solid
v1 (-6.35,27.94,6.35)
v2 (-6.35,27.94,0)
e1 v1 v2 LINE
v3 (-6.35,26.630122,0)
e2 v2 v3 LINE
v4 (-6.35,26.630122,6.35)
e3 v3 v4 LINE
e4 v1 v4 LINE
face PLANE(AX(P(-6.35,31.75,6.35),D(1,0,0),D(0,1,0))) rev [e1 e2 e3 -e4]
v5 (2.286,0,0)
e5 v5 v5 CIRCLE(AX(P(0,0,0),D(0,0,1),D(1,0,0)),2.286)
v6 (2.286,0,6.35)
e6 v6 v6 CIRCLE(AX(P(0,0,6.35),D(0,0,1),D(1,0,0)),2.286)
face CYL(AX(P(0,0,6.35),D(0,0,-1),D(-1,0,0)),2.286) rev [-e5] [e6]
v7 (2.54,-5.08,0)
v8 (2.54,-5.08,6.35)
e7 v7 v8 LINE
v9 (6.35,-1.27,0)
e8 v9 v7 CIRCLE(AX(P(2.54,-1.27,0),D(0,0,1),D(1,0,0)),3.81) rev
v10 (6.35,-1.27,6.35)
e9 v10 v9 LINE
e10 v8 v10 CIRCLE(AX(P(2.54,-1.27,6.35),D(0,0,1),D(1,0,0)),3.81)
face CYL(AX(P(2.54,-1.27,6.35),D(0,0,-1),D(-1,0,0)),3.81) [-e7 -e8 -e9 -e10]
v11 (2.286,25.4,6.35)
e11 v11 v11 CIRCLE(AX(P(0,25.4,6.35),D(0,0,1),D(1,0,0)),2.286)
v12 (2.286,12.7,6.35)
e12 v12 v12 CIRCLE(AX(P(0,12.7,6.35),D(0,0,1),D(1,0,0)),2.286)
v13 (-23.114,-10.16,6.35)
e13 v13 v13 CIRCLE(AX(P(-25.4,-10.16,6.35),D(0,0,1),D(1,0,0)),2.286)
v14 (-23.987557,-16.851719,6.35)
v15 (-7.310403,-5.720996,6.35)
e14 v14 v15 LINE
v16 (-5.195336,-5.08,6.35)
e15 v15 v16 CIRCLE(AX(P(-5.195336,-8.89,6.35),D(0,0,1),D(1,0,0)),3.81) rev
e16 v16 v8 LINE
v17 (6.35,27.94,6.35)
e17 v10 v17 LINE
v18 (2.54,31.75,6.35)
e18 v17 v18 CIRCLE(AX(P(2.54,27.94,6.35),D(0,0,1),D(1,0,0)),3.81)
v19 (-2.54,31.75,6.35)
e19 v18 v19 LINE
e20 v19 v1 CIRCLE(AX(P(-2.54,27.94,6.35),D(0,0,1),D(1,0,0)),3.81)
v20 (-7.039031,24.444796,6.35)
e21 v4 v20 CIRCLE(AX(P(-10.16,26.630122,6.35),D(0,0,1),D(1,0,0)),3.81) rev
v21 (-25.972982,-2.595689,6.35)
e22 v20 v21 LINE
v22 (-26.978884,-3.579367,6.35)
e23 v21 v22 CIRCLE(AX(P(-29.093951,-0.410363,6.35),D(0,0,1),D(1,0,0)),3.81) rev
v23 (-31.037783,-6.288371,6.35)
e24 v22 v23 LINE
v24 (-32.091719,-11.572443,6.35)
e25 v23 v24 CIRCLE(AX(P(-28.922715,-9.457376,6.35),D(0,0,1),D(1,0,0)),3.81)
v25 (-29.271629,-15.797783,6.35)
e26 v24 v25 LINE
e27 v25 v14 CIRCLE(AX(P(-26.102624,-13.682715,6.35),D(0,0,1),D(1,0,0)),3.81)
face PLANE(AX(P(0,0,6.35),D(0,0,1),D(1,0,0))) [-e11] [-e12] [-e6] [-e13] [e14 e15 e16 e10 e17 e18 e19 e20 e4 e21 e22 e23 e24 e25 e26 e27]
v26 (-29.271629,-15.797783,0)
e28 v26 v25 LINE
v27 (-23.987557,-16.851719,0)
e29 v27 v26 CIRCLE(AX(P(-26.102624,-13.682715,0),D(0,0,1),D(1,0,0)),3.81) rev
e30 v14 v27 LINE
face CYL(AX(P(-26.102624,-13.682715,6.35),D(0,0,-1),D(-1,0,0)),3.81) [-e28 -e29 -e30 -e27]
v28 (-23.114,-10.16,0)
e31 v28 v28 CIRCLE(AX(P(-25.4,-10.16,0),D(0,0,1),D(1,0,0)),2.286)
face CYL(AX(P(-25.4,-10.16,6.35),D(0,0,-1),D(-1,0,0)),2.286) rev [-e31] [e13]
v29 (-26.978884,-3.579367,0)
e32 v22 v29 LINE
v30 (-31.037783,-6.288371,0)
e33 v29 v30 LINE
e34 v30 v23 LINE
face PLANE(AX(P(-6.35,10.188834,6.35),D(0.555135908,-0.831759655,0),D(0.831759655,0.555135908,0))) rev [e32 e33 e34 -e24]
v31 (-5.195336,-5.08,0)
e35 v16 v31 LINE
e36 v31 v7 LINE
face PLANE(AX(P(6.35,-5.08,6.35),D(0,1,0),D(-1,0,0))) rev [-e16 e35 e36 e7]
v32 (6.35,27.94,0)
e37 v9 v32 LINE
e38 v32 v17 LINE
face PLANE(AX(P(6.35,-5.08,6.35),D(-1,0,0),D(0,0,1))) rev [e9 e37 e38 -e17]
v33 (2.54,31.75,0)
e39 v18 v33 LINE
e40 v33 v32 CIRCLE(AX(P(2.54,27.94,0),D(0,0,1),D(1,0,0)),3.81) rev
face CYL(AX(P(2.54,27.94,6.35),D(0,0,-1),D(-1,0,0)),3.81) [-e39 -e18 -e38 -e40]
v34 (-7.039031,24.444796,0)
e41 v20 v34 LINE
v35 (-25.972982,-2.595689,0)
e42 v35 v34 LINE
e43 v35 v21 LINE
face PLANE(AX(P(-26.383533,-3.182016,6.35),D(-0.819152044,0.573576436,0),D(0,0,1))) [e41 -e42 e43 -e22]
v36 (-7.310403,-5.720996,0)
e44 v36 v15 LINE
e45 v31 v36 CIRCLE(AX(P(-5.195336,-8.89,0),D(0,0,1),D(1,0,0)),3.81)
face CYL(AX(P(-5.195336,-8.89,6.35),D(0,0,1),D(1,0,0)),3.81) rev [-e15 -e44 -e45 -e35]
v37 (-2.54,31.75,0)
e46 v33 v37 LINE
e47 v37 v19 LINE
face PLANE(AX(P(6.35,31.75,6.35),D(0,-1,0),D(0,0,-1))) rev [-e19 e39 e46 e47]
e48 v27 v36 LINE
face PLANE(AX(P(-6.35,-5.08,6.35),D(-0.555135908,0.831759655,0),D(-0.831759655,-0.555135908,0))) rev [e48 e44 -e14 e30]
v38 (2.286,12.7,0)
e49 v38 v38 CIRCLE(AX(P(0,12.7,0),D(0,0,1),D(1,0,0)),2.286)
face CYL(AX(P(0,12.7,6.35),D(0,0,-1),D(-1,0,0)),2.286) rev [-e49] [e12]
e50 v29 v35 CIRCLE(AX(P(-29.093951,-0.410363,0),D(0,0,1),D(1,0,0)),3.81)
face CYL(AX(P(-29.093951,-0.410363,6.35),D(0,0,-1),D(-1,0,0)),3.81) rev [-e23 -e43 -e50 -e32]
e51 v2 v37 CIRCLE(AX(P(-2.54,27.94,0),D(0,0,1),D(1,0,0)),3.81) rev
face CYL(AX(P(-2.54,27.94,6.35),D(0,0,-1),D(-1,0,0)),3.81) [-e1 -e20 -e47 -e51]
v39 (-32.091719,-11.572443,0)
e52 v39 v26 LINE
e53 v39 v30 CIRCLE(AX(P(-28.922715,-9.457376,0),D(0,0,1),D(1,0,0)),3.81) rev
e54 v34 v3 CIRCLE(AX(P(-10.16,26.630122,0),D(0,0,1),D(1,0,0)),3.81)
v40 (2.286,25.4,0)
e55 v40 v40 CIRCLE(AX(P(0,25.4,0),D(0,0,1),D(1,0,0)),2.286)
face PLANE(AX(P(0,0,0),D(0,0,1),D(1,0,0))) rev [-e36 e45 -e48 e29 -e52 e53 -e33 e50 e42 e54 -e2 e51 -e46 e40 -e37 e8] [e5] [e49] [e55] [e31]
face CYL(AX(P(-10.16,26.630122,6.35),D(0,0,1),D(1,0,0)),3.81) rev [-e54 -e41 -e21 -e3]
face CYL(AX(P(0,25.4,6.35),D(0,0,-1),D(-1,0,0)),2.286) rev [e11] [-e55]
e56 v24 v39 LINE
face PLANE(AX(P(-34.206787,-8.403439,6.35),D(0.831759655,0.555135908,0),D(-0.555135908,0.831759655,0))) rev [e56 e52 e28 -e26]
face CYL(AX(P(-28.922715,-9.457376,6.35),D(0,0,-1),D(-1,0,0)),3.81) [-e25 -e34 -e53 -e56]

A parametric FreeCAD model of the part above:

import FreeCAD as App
import Part
import Sketcher

V = App.Vector
Q = App.Units.Quantity


def edges_at(feature, points):
    """Names of the edges that pass closest to the given points."""
    edges = feature.Shape.Edges
    near = lambda p: min(range(len(edges)), key=lambda i: edges[i].distToShape(Part.Vertex(*p))[0])
    return sorted({f"Edge{near(p) + 1}" for p in points})

doc = App.newDocument("Part")
params = doc.addObject("Spreadsheet::Sheet", "Params")
for row, (alias, value) in enumerate([
    ("sketch1_diameter", "0.18 in"),
    ("sketch1_width", "0.5 in"),
    ("sketch1_length", "0.5 in"),
    ("sketch1_height", "1.45 in"),
    ("pad1_length", "0.25 in"),
    ("chamfer_size", "0.6 in"),
    ("chamfer_size2", "24.085723 mm"),
    ("fillet_radius", "0.15 in"),
], start=1):
    params.set(f"A{row}", alias)
    params.set(f"B{row}", "=" + value)
    params.setAlias(f"B{row}", alias)

body = doc.addObject("PartDesign::Body", "Body")

sketch1 = body.newObject("Sketcher::SketchObject", "Sketch")
sketch1.AttachmentSupport = (doc.getObject("XY_Plane"), [""])
sketch1.MapMode = "FlatFace"
sketch1.addGeometry([
    Part.LineSegment(V(-6.3, 31.8, 0), V(-6.3, 10.2, 0)),
    Part.LineSegment(V(-6.3, 10.2, 0), V(-34.2, -8.4, 0)),
    Part.LineSegment(V(-34.2, -8.4, 0), V(-27.2, -19, 0)),
    Part.LineSegment(V(-27.2, -19, 0), V(-6.3, -5.1, 0)),
    Part.LineSegment(V(-6.3, -5.1, 0), V(6.3, -5.1, 0)),
    Part.LineSegment(V(6.3, -5.1, 0), V(6.3, 31.8, 0)),
    Part.LineSegment(V(6.3, 31.8, 0), V(-6.3, 31.8, 0)),
    Part.Circle(V(-25.4, -10.2, 0), V(0, 0, 1), 2.3),
    Part.Circle(V(0, 0, 0), V(0, 0, 1), 2.3),
    Part.Circle(V(0, 12.7, 0), V(0, 0, 1), 2.3),
    Part.Circle(V(0, 25.4, 0), V(0, 0, 1), 2.3),
], False)
sketch1.addConstraint([
    Sketcher.Constraint("Coincident", 0, 2, 1, 1),
    Sketcher.Constraint("Coincident", 1, 2, 2, 1),
    Sketcher.Constraint("Coincident", 2, 2, 3, 1),
    Sketcher.Constraint("Coincident", 3, 2, 4, 1),
    Sketcher.Constraint("Coincident", 4, 2, 5, 1),
    Sketcher.Constraint("Coincident", 5, 2, 6, 1),
    Sketcher.Constraint("Coincident", 6, 2, 0, 1),
    Sketcher.Constraint("Vertical", 0),
    Sketcher.Constraint("Horizontal", 4),
    Sketcher.Constraint("Vertical", 5),
    Sketcher.Constraint("Horizontal", 6),
    Sketcher.Constraint("Coincident", 8, 3, -1, 1),
    Sketcher.Constraint("Equal", 7, 8),
    Sketcher.Constraint("Equal", 8, 9),
    Sketcher.Constraint("Equal", 9, 10),
    Sketcher.Constraint("PointOnObject", 9, 3, -2),
    Sketcher.Constraint("PointOnObject", 10, 3, -2),
    Sketcher.Constraint("Perpendicular", 1, 2),
    Sketcher.Constraint("Perpendicular", 2, 3),
    Sketcher.Constraint("Vertical", 0, 2, 3, 2),
    Sketcher.Constraint("Diameter", 7, Q("0.18 in")),
    Sketcher.Constraint("DistanceX", 4, 1, 4, 2, Q("0.5 in")),
    Sketcher.Constraint("DistanceX", 7, 3, -1, 1, Q("1 in")),
    Sketcher.Constraint("DistanceY", -1, 1, 10, 3, Q("1 in")),
    Sketcher.Constraint("Distance", 2, Q("0.5 in")),
    Sketcher.Constraint("DistanceY", 5, 1, 5, 2, Q("1.45 in")),
    Sketcher.Constraint("DistanceY", 7, 3, -1, 1, Q("0.4 in")),
    Sketcher.Constraint("DistanceY", -1, 1, 9, 3, Q("0.5 in")),
    Sketcher.Constraint("DistanceY", 3, 2, -1, 1, Q("0.2 in")),
    Sketcher.Constraint("DistanceX", 0, 2, -1, 1, Q("0.25 in")),
    Sketcher.Constraint("Distance", 1, Q("33.49139 mm")),
    Sketcher.Constraint("Distance", 3, Q("25.015112 mm")),
])
sketch1.setExpression("Constraints[20]", "Params.sketch1_diameter")
sketch1.setExpression("Constraints[21]", "Params.sketch1_width")
sketch1.setExpression("Constraints[24]", "Params.sketch1_length")
sketch1.setExpression("Constraints[25]", "Params.sketch1_height")
pad1 = body.newObject("PartDesign::Pad", "Pad")
pad1.Profile = sketch1
pad1.setExpression("Length", "Params.pad1_length")
doc.recompute()

chamfer = body.newObject("PartDesign::Chamfer", "Chamfer")
chamfer.Base = (pad1, edges_at(pad1, [(-6.35, 10.189, 3.175)]))
chamfer.ChamferType = "Two distances"
chamfer.setExpression("Size", "Params.chamfer_size")
chamfer.setExpression("Size2", "Params.chamfer_size2")
doc.recompute()

fillet = body.newObject("PartDesign::Fillet", "Fillet")
fillet.Base = (chamfer, edges_at(chamfer, [
    (6.35, 31.75, 3.175),
    (6.35, -5.08, 3.175),
    (-6.35, -5.08, 3.175),
    (-27.157, -18.967, 3.175),
    (-34.207, -8.403, 3.175),
    (-6.35, 31.75, 3.175),
    (-26.384, -3.182, 3.175),
    (-6.35, 25.429, 3.175),
]))
fillet.setExpression("Radius", "Params.fillet_radius")

doc.recompute()
